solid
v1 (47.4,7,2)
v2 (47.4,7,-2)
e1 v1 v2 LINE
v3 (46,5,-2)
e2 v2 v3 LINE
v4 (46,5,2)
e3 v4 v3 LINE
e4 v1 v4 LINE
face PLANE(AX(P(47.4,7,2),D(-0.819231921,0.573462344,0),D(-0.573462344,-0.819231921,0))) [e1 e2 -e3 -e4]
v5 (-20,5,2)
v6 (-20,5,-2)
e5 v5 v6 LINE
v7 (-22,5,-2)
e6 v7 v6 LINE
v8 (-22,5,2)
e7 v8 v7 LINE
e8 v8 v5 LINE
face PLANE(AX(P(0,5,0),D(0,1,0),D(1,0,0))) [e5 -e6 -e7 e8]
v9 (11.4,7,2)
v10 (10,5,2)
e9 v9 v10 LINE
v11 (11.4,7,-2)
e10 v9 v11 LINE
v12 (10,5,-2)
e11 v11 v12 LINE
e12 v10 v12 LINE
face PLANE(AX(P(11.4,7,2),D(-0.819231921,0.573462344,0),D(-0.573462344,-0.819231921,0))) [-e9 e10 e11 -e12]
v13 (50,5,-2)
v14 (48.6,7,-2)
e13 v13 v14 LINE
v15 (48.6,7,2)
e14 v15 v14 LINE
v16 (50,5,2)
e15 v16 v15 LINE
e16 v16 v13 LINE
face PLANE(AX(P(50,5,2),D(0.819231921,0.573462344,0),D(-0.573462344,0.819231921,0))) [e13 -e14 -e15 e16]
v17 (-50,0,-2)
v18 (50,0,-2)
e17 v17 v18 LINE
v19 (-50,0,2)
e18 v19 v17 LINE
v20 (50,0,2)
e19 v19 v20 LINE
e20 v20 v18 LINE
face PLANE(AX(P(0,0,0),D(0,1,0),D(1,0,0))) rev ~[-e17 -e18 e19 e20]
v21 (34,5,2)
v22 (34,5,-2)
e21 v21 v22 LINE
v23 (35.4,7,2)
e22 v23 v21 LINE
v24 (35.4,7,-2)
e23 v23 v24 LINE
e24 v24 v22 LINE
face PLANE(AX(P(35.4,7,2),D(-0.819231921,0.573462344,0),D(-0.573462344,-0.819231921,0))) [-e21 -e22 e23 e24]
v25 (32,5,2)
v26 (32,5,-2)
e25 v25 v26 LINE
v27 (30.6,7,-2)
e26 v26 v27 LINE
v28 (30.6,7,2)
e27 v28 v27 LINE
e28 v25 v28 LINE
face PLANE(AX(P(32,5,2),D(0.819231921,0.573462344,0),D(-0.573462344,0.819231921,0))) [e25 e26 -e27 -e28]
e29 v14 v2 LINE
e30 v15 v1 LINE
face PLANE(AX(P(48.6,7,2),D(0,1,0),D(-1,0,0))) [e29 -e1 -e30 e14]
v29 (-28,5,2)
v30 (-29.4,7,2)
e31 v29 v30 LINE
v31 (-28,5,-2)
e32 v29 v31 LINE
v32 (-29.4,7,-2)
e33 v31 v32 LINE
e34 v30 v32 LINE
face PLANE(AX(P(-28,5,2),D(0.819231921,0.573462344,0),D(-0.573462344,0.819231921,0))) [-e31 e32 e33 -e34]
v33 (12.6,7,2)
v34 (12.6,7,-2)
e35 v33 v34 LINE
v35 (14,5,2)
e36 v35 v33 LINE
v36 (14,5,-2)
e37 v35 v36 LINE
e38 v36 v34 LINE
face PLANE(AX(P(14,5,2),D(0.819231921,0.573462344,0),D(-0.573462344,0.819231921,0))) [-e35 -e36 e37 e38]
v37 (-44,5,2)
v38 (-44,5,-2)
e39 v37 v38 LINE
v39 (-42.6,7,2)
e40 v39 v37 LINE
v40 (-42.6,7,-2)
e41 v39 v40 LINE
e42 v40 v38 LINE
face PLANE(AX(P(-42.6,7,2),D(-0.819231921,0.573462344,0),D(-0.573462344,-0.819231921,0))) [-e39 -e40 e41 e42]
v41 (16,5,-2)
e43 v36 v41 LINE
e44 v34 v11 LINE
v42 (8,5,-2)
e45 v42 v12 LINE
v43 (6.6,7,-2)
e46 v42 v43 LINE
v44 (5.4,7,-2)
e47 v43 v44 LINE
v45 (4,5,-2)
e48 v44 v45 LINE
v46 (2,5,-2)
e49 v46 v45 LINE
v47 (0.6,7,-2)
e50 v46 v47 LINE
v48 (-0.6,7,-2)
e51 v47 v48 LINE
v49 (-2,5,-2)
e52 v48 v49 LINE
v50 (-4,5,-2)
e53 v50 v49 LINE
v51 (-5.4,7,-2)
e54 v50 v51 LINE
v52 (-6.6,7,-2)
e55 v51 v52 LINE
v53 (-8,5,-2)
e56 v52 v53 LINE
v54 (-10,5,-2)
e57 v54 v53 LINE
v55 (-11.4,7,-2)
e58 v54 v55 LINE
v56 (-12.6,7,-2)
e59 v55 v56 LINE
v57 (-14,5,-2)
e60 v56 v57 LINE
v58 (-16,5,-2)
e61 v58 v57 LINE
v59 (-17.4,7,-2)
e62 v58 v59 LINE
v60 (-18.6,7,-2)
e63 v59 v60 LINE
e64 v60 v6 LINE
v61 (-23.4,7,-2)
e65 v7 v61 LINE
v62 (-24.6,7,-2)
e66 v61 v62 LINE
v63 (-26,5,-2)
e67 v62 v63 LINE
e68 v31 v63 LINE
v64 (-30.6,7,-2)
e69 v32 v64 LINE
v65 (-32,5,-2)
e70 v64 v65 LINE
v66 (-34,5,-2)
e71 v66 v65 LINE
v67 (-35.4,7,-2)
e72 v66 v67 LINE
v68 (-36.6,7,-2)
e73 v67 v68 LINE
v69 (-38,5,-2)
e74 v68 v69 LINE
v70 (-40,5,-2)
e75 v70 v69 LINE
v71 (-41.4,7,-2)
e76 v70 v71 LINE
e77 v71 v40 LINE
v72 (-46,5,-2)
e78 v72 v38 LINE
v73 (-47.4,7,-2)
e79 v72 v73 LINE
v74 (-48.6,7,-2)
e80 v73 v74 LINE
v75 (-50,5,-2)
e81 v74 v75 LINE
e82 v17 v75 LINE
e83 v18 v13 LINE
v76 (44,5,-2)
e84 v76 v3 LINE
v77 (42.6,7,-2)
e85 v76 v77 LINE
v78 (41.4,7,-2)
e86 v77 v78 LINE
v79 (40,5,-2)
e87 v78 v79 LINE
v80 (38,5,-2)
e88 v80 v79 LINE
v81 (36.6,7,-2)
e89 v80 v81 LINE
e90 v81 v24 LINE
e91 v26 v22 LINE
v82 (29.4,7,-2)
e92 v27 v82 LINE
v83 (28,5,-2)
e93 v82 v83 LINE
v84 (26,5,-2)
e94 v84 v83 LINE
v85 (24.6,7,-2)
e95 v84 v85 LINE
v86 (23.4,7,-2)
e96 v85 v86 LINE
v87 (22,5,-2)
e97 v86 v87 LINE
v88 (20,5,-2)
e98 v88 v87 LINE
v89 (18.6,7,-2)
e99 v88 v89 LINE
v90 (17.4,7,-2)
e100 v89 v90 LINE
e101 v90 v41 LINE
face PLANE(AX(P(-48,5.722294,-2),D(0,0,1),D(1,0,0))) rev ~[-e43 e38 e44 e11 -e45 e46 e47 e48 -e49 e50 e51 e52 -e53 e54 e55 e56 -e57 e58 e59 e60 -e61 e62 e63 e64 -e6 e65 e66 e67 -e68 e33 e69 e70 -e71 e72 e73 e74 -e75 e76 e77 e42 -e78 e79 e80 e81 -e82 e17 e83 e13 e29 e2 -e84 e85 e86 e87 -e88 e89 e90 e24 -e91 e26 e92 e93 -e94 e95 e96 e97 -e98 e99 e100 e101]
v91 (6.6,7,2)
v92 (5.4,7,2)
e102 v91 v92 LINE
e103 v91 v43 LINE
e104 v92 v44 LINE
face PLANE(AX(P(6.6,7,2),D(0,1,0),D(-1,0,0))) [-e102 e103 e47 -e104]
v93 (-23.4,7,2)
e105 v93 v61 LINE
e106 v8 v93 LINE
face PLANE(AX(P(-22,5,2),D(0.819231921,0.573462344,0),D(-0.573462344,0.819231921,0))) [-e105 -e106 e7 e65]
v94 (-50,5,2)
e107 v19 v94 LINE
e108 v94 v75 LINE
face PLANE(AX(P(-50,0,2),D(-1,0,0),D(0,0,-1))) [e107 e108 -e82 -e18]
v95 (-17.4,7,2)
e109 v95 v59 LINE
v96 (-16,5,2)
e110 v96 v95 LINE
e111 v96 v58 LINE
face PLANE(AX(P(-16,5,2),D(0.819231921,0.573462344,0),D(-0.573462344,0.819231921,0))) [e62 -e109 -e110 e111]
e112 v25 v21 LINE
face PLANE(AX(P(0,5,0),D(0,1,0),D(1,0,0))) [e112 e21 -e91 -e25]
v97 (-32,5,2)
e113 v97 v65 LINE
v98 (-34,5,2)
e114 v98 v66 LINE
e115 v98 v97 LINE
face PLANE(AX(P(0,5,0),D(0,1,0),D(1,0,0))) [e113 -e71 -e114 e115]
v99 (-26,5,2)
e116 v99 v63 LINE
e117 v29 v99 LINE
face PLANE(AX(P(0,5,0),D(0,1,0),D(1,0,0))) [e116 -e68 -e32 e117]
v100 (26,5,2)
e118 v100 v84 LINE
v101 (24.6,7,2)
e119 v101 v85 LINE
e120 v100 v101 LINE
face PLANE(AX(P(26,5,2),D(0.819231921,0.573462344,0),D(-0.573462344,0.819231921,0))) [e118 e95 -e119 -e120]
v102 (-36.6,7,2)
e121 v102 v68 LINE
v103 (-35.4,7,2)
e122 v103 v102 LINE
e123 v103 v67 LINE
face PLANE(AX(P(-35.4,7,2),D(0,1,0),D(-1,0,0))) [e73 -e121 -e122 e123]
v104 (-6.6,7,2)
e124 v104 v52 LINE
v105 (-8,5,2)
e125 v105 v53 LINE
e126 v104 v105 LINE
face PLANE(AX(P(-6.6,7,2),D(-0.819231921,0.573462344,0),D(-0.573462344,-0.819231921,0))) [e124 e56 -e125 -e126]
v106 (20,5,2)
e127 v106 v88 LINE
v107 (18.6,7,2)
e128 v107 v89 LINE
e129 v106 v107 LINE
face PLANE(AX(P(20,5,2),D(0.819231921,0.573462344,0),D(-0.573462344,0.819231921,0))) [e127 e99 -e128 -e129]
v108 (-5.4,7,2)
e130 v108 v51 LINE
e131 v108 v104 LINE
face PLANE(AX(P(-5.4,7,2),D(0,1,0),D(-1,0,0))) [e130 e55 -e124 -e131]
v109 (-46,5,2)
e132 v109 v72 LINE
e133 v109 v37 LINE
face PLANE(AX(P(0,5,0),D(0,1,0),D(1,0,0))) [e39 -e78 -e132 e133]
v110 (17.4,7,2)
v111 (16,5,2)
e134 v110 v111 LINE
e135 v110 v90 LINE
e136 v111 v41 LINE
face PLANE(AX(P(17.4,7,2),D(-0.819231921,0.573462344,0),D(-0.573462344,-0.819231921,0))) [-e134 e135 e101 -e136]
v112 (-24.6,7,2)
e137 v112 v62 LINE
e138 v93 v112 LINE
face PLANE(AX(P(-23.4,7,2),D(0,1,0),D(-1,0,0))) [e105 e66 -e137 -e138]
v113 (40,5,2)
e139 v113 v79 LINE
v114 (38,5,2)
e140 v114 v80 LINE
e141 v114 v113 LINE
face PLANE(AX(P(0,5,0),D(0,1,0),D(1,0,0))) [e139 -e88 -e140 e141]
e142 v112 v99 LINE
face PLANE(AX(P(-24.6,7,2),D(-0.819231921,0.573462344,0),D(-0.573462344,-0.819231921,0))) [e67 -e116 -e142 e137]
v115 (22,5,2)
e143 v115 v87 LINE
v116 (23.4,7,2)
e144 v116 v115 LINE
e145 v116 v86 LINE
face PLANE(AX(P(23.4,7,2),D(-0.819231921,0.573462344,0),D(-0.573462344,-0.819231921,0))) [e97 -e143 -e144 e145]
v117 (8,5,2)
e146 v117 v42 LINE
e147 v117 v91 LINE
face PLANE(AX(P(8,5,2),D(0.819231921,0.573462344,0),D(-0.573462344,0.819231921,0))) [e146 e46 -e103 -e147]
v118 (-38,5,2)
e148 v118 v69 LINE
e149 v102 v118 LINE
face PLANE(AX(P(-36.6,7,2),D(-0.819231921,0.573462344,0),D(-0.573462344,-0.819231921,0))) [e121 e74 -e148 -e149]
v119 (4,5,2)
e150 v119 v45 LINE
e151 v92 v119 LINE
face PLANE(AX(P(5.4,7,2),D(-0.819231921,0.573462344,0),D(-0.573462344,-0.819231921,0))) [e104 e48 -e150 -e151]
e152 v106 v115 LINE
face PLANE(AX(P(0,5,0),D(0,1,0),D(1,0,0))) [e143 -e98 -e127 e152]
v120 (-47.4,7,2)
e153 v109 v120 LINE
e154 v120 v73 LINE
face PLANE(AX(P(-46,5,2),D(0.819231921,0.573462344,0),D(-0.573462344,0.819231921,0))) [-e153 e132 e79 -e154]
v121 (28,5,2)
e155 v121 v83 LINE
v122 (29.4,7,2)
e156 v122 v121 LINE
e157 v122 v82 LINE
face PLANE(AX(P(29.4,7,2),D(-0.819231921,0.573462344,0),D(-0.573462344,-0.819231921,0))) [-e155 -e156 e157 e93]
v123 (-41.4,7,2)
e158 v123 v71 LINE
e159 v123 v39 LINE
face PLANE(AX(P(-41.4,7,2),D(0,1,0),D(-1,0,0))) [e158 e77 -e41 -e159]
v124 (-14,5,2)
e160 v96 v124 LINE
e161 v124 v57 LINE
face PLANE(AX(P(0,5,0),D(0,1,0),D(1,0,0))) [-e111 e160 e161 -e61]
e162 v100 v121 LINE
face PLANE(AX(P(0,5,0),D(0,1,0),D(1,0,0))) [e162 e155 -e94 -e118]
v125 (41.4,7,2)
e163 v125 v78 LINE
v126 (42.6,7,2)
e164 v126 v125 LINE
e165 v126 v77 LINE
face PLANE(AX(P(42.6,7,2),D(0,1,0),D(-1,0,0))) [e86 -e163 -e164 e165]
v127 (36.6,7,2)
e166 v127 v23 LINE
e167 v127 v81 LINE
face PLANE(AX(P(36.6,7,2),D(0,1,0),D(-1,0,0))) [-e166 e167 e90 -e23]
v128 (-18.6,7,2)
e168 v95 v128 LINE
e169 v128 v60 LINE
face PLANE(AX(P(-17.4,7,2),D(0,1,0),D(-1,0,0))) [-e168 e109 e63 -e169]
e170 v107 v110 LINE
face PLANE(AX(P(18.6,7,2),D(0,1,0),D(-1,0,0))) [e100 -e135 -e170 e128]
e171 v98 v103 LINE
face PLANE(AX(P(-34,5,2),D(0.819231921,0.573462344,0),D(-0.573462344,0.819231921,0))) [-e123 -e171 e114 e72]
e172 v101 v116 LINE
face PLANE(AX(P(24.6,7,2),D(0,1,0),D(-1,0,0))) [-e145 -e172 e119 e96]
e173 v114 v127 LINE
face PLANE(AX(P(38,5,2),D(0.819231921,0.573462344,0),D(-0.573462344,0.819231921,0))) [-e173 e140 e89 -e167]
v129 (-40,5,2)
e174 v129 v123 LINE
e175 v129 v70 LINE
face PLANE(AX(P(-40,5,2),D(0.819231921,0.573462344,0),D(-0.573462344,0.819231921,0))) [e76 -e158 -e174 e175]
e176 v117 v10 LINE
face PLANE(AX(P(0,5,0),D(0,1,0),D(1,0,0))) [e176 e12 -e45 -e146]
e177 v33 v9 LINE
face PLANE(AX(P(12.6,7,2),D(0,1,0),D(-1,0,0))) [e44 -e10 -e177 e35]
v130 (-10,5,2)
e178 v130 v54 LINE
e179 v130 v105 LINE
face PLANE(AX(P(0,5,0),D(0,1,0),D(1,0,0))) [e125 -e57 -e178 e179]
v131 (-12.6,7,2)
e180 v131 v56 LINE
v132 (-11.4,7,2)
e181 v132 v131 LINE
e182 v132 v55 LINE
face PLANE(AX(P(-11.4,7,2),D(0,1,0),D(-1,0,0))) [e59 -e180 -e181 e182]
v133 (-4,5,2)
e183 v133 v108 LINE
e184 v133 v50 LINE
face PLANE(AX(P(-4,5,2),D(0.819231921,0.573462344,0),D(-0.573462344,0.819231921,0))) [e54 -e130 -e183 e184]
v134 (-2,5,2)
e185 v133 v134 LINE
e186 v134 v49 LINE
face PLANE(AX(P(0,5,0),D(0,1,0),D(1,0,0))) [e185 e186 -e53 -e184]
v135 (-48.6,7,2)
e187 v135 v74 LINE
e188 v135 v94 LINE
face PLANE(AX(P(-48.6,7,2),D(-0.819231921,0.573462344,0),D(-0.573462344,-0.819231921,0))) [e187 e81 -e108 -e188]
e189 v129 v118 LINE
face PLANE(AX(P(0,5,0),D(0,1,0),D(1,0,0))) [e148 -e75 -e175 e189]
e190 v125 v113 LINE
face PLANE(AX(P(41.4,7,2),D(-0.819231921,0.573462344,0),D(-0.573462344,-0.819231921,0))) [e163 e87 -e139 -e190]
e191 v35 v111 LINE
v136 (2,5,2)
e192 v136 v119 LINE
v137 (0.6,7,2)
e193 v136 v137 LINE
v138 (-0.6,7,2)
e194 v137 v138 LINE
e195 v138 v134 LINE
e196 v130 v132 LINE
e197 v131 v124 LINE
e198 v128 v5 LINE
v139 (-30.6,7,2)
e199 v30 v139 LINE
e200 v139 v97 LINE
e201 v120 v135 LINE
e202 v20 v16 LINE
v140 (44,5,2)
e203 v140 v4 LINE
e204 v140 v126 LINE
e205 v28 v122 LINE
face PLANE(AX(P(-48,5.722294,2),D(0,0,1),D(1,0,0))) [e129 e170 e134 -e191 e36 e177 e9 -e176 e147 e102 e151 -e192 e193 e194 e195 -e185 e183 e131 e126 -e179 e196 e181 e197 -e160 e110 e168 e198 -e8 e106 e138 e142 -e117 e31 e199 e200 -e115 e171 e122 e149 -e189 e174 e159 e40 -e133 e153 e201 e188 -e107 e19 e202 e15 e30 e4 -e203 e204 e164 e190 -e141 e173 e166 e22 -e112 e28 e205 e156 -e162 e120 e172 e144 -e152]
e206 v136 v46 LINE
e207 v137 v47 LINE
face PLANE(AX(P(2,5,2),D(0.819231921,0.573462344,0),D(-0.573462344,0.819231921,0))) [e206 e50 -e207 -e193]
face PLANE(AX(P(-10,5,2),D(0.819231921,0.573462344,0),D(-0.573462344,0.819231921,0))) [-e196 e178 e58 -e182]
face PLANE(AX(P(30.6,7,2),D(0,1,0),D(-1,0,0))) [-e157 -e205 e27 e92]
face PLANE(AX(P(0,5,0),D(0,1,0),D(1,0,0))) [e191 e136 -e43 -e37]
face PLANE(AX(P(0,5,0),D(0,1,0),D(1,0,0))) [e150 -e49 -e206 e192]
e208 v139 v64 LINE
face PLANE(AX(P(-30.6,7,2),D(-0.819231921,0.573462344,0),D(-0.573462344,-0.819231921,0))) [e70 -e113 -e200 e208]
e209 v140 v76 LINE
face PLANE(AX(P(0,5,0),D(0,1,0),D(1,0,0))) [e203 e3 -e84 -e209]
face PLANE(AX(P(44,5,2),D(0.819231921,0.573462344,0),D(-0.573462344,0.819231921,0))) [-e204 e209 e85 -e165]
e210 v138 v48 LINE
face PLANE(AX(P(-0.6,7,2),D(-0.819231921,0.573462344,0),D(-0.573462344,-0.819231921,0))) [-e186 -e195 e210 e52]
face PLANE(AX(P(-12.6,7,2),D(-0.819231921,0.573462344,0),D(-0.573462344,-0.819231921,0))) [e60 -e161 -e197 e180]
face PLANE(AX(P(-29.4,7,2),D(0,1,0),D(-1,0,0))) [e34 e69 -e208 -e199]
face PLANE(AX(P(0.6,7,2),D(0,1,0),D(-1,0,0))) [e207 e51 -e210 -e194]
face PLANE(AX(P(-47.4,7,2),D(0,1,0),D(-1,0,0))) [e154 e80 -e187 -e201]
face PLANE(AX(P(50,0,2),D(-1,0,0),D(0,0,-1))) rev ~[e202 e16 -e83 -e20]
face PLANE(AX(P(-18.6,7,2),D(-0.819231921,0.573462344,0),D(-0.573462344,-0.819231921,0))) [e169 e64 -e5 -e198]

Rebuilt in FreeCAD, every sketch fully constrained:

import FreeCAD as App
import Part
import Sketcher


def add_polygon(sketch, points):
    """Adds a closed chain of lines whose ends are joined by coincident constraints."""
    first, n = sketch.GeometryCount, len(points)
    for a, b in zip(points, points[1:] + points[:1]):
        sketch.addGeometry(Part.LineSegment(App.Vector(*a, 0), App.Vector(*b, 0)), False)
    for i in range(n):
        sketch.addConstraint(Sketcher.Constraint("Coincident", first + i, 2, first + (i + 1) % n, 1))

doc = App.newDocument("Part")
body = doc.addObject("PartDesign::Body", "Body")

# Sketch on XZ plane
sketch1 = body.newObject("Sketcher::SketchObject", "Sketch")
sketch1.AttachmentSupport = (doc.getObject("XZ_Plane"), [""])
sketch1.MapMode = "FlatFace"
add_polygon(sketch1, [(-50, -2), (-50, 2), (50, 2), (50, -2)])  # lines 0-3
sketch1.addConstraint([
    Sketcher.Constraint("Vertical", 0),
    Sketcher.Constraint("Horizontal", 1),
    Sketcher.Constraint("Vertical", 2),
    Sketcher.Constraint("Horizontal", 3),
    Sketcher.Constraint("Symmetric", 0, 2, 2, 2, -1, 1),
    Sketcher.Constraint("DistanceX", 1, 1, 1, 2, 100.0),
    Sketcher.Constraint("DistanceY", 0, 1, 0, 2, 4.0),
])
pad1 = body.newObject("PartDesign::Pad", "Pad")
pad1.Profile = sketch1
pad1.Length = 5
pad1.Reversed = True

# Sketch on XY plane
sketch2 = body.newObject("Sketcher::SketchObject", "Sketch001")
sketch2.AttachmentSupport = (doc.getObject("XY_Plane"), [""])
sketch2.MapMode = "FlatFace"
sketch2.AttachmentOffset = App.Placement(App.Vector(0, 0, 2), App.Rotation())
add_polygon(sketch2, [(-50, 5), (-46, 5), (-47.4, 7), (-48.6, 7)])  # lines 0-3
add_polygon(sketch2, [(-42.6, 7), (-44, 5), (-40, 5), (-41.4, 7)])  # lines 4-7
add_polygon(sketch2, [(-36.6, 7), (-38, 5), (-34, 5), (-35.4, 7)])  # lines 8-11
add_polygon(sketch2, [(-30.6, 7), (-32, 5), (-28, 5), (-29.4, 7)])  # lines 12-15
add_polygon(sketch2, [(-24.6, 7), (-26, 5), (-22, 5), (-23.4, 7)])  # lines 16-19
add_polygon(sketch2, [(-18.6, 7), (-20, 5), (-16, 5), (-17.4, 7)])  # lines 20-23
add_polygon(sketch2, [(-12.6, 7), (-14, 5), (-10, 5), (-11.4, 7)])  # lines 24-27
add_polygon(sketch2, [(-6.6, 7), (-8, 5), (-4, 5), (-5.4, 7)])  # lines 28-31
add_polygon(sketch2, [(-0.6, 7), (-2, 5), (2, 5), (0.6, 7)])  # lines 32-35
add_polygon(sketch2, [(5.4, 7), (4, 5), (8, 5), (6.6, 7)])  # lines 36-39
add_polygon(sketch2, [(11.4, 7), (10, 5), (14, 5), (12.6, 7)])  # lines 40-43
add_polygon(sketch2, [(17.4, 7), (16, 5), (20, 5), (18.6, 7)])  # lines 44-47
add_polygon(sketch2, [(23.4, 7), (22, 5), (26, 5), (24.6, 7)])  # lines 48-51
add_polygon(sketch2, [(29.4, 7), (28, 5), (32, 5), (30.6, 7)])  # lines 52-55
add_polygon(sketch2, [(35.4, 7), (34, 5), (38, 5), (36.6, 7)])  # lines 56-59
add_polygon(sketch2, [(41.4, 7), (40, 5), (44, 5), (42.6, 7)])  # lines 60-63
add_polygon(sketch2, [(47.4, 7), (46, 5), (50, 5), (48.6, 7)])  # lines 64-67
sketch2.addConstraint([
    Sketcher.Constraint("Horizontal", 0),
    Sketcher.Constraint("Horizontal", 2),
    Sketcher.Constraint("Horizontal", 5),
    Sketcher.Constraint("Horizontal", 7),
    Sketcher.Constraint("Horizontal", 9),
    Sketcher.Constraint("Horizontal", 11),
    Sketcher.Constraint("Horizontal", 13),
    Sketcher.Constraint("Horizontal", 15),
    Sketcher.Constraint("Horizontal", 17),
    Sketcher.Constraint("Horizontal", 19),
    Sketcher.Constraint("Horizontal", 21),
    Sketcher.Constraint("Horizontal", 23),
    Sketcher.Constraint("Horizontal", 25),
    Sketcher.Constraint("Horizontal", 27),
    Sketcher.Constraint("Horizontal", 29),
    Sketcher.Constraint("Horizontal", 31),
    Sketcher.Constraint("Horizontal", 33),
    Sketcher.Constraint("Horizontal", 35),
    Sketcher.Constraint("Horizontal", 37),
    Sketcher.Constraint("Horizontal", 39),
    Sketcher.Constraint("Horizontal", 41),
    Sketcher.Constraint("Horizontal", 43),
    Sketcher.Constraint("Horizontal", 45),
    Sketcher.Constraint("Horizontal", 47),
    Sketcher.Constraint("Horizontal", 49),
    Sketcher.Constraint("Horizontal", 51),
    Sketcher.Constraint("Horizontal", 53),
    Sketcher.Constraint("Horizontal", 55),
    Sketcher.Constraint("Horizontal", 57),
    Sketcher.Constraint("Horizontal", 59),
    Sketcher.Constraint("Horizontal", 61),
    Sketcher.Constraint("Horizontal", 63),
    Sketcher.Constraint("Horizontal", 65),
    Sketcher.Constraint("Horizontal", 67),
    Sketcher.Constraint("Symmetric", 29, 2, 36, 2, -2),
    Sketcher.Constraint("Symmetric", 31, 2, 38, 2, -2),
    Sketcher.Constraint("Symmetric", 25, 2, 40, 2, -2),
    Sketcher.Constraint("Symmetric", 27, 2, 42, 2, -2),
    Sketcher.Constraint("Symmetric", 21, 2, 44, 2, -2),
    Sketcher.Constraint("Symmetric", 23, 2, 46, 2, -2),
    Sketcher.Constraint("Symmetric", 17, 2, 48, 2, -2),
    Sketcher.Constraint("Symmetric", 19, 2, 50, 2, -2),
    Sketcher.Constraint("Symmetric", 13, 2, 52, 2, -2),
    Sketcher.Constraint("Symmetric", 15, 2, 54, 2, -2),
    Sketcher.Constraint("Symmetric", 9, 2, 56, 2, -2),
    Sketcher.Constraint("Symmetric", 11, 2, 58, 2, -2),
    Sketcher.Constraint("Symmetric", 5, 2, 60, 2, -2),
    Sketcher.Constraint("Symmetric", 7, 2, 62, 2, -2),
    Sketcher.Constraint("Symmetric", 0, 2, 64, 2, -2),
    Sketcher.Constraint("Symmetric", 2, 2, 66, 2, -2),
    Sketcher.Constraint("Parallel", 3, 4),
    Sketcher.Constraint("Parallel", 1, 6),
    Sketcher.Constraint("Parallel", 4, 8),
    Sketcher.Constraint("Parallel", 6, 10),
    Sketcher.Constraint("Parallel", 8, 12),
    Sketcher.Constraint("Parallel", 10, 14),
    Sketcher.Constraint("Parallel", 12, 16),
    Sketcher.Constraint("Parallel", 14, 18),
    Sketcher.Constraint("Parallel", 16, 20),
    Sketcher.Constraint("Parallel", 18, 22),
    Sketcher.Constraint("Parallel", 20, 24),
    Sketcher.Constraint("Parallel", 22, 26),
    Sketcher.Constraint("Parallel", 24, 28),
    Sketcher.Constraint("Parallel", 26, 30),
    Sketcher.Constraint("Parallel", 28, 32),
    Sketcher.Constraint("Parallel", 30, 34),
    Sketcher.Constraint("Parallel", 32, 36),
    Sketcher.Constraint("Parallel", 34, 38),
    Sketcher.Constraint("Parallel", 36, 40),
    Sketcher.Constraint("Parallel", 38, 42),
    Sketcher.Constraint("Parallel", 40, 44),
    Sketcher.Constraint("Parallel", 42, 46),
    Sketcher.Constraint("Parallel", 44, 48),
    Sketcher.Constraint("Parallel", 46, 50),
    Sketcher.Constraint("Parallel", 48, 52),
    Sketcher.Constraint("Parallel", 50, 54),
    Sketcher.Constraint("Parallel", 52, 56),
    Sketcher.Constraint("Parallel", 54, 58),
    Sketcher.Constraint("Parallel", 56, 60),
    Sketcher.Constraint("Parallel", 58, 62),
    Sketcher.Constraint("Parallel", 60, 64),
    Sketcher.Constraint("Parallel", 62, 66),
    Sketcher.Constraint("Horizontal", 3, 2, 4, 2),
    Sketcher.Constraint("Horizontal", 2, 2, 6, 2),
    Sketcher.Constraint("Horizontal", 5, 2, 8, 2),
    Sketcher.Constraint("Horizontal", 7, 2, 10, 2),
    Sketcher.Constraint("Horizontal", 9, 2, 12, 2),
    Sketcher.Constraint("Horizontal", 11, 2, 14, 2),
    Sketcher.Constraint("Horizontal", 13, 2, 16, 2),
    Sketcher.Constraint("Horizontal", 15, 2, 18, 2),
    Sketcher.Constraint("Horizontal", 17, 2, 20, 2),
    Sketcher.Constraint("Horizontal", 19, 2, 22, 2),
    Sketcher.Constraint("Horizontal", 21, 2, 24, 2),
    Sketcher.Constraint("Horizontal", 23, 2, 26, 2),
    Sketcher.Constraint("Horizontal", 25, 2, 28, 2),
    Sketcher.Constraint("Horizontal", 27, 2, 30, 2),
    Sketcher.Constraint("Horizontal", 29, 2, 32, 2),
    Sketcher.Constraint("Horizontal", 31, 2, 34, 2),
    Sketcher.Constraint("Equal", 0, 5),
    Sketcher.Constraint("Equal", 5, 9),
    Sketcher.Constraint("Equal", 9, 13),
    Sketcher.Constraint("Equal", 13, 17),
    Sketcher.Constraint("Equal", 17, 21),
    Sketcher.Constraint("Equal", 21, 25),
    Sketcher.Constraint("Equal", 25, 29),
    Sketcher.Constraint("Equal", 29, 33),
    Sketcher.Constraint("Equal", 33, 37),
    Sketcher.Constraint("DistanceX", 0, 1, 0, 2, 4.0),
    Sketcher.Constraint("DistanceX", 2, 2, 2, 1, 1.2),
    Sketcher.Constraint("DistanceX", 0, 2, -1, 1, 46.0),
    Sketcher.Constraint("DistanceY", -1, 1, 0, 2, 5.0),
    Sketcher.Constraint("DistanceY", -1, 1, 1, 2, 7.0),
    Sketcher.Constraint("DistanceX", 4, 2, -1, 1, 44.0),
    Sketcher.Constraint("DistanceX", 8, 2, -1, 1, 38.0),
    Sketcher.Constraint("DistanceX", 12, 2, -1, 1, 32.0),
    Sketcher.Constraint("DistanceX", 16, 2, -1, 1, 26.0),
    Sketcher.Constraint("DistanceX", 20, 2, -1, 1, 20.0),
    Sketcher.Constraint("DistanceX", 24, 2, -1, 1, 14.0),
    Sketcher.Constraint("DistanceX", 28, 2, -1, 1, 8.0),
    Sketcher.Constraint("DistanceX", 32, 2, -1, 1, 2.0),
])
pad2 = body.newObject("PartDesign::Pad", "Pad001")
pad2.Profile = sketch2
pad2.Length = 4
pad2.Reversed = True

doc.recompute()
